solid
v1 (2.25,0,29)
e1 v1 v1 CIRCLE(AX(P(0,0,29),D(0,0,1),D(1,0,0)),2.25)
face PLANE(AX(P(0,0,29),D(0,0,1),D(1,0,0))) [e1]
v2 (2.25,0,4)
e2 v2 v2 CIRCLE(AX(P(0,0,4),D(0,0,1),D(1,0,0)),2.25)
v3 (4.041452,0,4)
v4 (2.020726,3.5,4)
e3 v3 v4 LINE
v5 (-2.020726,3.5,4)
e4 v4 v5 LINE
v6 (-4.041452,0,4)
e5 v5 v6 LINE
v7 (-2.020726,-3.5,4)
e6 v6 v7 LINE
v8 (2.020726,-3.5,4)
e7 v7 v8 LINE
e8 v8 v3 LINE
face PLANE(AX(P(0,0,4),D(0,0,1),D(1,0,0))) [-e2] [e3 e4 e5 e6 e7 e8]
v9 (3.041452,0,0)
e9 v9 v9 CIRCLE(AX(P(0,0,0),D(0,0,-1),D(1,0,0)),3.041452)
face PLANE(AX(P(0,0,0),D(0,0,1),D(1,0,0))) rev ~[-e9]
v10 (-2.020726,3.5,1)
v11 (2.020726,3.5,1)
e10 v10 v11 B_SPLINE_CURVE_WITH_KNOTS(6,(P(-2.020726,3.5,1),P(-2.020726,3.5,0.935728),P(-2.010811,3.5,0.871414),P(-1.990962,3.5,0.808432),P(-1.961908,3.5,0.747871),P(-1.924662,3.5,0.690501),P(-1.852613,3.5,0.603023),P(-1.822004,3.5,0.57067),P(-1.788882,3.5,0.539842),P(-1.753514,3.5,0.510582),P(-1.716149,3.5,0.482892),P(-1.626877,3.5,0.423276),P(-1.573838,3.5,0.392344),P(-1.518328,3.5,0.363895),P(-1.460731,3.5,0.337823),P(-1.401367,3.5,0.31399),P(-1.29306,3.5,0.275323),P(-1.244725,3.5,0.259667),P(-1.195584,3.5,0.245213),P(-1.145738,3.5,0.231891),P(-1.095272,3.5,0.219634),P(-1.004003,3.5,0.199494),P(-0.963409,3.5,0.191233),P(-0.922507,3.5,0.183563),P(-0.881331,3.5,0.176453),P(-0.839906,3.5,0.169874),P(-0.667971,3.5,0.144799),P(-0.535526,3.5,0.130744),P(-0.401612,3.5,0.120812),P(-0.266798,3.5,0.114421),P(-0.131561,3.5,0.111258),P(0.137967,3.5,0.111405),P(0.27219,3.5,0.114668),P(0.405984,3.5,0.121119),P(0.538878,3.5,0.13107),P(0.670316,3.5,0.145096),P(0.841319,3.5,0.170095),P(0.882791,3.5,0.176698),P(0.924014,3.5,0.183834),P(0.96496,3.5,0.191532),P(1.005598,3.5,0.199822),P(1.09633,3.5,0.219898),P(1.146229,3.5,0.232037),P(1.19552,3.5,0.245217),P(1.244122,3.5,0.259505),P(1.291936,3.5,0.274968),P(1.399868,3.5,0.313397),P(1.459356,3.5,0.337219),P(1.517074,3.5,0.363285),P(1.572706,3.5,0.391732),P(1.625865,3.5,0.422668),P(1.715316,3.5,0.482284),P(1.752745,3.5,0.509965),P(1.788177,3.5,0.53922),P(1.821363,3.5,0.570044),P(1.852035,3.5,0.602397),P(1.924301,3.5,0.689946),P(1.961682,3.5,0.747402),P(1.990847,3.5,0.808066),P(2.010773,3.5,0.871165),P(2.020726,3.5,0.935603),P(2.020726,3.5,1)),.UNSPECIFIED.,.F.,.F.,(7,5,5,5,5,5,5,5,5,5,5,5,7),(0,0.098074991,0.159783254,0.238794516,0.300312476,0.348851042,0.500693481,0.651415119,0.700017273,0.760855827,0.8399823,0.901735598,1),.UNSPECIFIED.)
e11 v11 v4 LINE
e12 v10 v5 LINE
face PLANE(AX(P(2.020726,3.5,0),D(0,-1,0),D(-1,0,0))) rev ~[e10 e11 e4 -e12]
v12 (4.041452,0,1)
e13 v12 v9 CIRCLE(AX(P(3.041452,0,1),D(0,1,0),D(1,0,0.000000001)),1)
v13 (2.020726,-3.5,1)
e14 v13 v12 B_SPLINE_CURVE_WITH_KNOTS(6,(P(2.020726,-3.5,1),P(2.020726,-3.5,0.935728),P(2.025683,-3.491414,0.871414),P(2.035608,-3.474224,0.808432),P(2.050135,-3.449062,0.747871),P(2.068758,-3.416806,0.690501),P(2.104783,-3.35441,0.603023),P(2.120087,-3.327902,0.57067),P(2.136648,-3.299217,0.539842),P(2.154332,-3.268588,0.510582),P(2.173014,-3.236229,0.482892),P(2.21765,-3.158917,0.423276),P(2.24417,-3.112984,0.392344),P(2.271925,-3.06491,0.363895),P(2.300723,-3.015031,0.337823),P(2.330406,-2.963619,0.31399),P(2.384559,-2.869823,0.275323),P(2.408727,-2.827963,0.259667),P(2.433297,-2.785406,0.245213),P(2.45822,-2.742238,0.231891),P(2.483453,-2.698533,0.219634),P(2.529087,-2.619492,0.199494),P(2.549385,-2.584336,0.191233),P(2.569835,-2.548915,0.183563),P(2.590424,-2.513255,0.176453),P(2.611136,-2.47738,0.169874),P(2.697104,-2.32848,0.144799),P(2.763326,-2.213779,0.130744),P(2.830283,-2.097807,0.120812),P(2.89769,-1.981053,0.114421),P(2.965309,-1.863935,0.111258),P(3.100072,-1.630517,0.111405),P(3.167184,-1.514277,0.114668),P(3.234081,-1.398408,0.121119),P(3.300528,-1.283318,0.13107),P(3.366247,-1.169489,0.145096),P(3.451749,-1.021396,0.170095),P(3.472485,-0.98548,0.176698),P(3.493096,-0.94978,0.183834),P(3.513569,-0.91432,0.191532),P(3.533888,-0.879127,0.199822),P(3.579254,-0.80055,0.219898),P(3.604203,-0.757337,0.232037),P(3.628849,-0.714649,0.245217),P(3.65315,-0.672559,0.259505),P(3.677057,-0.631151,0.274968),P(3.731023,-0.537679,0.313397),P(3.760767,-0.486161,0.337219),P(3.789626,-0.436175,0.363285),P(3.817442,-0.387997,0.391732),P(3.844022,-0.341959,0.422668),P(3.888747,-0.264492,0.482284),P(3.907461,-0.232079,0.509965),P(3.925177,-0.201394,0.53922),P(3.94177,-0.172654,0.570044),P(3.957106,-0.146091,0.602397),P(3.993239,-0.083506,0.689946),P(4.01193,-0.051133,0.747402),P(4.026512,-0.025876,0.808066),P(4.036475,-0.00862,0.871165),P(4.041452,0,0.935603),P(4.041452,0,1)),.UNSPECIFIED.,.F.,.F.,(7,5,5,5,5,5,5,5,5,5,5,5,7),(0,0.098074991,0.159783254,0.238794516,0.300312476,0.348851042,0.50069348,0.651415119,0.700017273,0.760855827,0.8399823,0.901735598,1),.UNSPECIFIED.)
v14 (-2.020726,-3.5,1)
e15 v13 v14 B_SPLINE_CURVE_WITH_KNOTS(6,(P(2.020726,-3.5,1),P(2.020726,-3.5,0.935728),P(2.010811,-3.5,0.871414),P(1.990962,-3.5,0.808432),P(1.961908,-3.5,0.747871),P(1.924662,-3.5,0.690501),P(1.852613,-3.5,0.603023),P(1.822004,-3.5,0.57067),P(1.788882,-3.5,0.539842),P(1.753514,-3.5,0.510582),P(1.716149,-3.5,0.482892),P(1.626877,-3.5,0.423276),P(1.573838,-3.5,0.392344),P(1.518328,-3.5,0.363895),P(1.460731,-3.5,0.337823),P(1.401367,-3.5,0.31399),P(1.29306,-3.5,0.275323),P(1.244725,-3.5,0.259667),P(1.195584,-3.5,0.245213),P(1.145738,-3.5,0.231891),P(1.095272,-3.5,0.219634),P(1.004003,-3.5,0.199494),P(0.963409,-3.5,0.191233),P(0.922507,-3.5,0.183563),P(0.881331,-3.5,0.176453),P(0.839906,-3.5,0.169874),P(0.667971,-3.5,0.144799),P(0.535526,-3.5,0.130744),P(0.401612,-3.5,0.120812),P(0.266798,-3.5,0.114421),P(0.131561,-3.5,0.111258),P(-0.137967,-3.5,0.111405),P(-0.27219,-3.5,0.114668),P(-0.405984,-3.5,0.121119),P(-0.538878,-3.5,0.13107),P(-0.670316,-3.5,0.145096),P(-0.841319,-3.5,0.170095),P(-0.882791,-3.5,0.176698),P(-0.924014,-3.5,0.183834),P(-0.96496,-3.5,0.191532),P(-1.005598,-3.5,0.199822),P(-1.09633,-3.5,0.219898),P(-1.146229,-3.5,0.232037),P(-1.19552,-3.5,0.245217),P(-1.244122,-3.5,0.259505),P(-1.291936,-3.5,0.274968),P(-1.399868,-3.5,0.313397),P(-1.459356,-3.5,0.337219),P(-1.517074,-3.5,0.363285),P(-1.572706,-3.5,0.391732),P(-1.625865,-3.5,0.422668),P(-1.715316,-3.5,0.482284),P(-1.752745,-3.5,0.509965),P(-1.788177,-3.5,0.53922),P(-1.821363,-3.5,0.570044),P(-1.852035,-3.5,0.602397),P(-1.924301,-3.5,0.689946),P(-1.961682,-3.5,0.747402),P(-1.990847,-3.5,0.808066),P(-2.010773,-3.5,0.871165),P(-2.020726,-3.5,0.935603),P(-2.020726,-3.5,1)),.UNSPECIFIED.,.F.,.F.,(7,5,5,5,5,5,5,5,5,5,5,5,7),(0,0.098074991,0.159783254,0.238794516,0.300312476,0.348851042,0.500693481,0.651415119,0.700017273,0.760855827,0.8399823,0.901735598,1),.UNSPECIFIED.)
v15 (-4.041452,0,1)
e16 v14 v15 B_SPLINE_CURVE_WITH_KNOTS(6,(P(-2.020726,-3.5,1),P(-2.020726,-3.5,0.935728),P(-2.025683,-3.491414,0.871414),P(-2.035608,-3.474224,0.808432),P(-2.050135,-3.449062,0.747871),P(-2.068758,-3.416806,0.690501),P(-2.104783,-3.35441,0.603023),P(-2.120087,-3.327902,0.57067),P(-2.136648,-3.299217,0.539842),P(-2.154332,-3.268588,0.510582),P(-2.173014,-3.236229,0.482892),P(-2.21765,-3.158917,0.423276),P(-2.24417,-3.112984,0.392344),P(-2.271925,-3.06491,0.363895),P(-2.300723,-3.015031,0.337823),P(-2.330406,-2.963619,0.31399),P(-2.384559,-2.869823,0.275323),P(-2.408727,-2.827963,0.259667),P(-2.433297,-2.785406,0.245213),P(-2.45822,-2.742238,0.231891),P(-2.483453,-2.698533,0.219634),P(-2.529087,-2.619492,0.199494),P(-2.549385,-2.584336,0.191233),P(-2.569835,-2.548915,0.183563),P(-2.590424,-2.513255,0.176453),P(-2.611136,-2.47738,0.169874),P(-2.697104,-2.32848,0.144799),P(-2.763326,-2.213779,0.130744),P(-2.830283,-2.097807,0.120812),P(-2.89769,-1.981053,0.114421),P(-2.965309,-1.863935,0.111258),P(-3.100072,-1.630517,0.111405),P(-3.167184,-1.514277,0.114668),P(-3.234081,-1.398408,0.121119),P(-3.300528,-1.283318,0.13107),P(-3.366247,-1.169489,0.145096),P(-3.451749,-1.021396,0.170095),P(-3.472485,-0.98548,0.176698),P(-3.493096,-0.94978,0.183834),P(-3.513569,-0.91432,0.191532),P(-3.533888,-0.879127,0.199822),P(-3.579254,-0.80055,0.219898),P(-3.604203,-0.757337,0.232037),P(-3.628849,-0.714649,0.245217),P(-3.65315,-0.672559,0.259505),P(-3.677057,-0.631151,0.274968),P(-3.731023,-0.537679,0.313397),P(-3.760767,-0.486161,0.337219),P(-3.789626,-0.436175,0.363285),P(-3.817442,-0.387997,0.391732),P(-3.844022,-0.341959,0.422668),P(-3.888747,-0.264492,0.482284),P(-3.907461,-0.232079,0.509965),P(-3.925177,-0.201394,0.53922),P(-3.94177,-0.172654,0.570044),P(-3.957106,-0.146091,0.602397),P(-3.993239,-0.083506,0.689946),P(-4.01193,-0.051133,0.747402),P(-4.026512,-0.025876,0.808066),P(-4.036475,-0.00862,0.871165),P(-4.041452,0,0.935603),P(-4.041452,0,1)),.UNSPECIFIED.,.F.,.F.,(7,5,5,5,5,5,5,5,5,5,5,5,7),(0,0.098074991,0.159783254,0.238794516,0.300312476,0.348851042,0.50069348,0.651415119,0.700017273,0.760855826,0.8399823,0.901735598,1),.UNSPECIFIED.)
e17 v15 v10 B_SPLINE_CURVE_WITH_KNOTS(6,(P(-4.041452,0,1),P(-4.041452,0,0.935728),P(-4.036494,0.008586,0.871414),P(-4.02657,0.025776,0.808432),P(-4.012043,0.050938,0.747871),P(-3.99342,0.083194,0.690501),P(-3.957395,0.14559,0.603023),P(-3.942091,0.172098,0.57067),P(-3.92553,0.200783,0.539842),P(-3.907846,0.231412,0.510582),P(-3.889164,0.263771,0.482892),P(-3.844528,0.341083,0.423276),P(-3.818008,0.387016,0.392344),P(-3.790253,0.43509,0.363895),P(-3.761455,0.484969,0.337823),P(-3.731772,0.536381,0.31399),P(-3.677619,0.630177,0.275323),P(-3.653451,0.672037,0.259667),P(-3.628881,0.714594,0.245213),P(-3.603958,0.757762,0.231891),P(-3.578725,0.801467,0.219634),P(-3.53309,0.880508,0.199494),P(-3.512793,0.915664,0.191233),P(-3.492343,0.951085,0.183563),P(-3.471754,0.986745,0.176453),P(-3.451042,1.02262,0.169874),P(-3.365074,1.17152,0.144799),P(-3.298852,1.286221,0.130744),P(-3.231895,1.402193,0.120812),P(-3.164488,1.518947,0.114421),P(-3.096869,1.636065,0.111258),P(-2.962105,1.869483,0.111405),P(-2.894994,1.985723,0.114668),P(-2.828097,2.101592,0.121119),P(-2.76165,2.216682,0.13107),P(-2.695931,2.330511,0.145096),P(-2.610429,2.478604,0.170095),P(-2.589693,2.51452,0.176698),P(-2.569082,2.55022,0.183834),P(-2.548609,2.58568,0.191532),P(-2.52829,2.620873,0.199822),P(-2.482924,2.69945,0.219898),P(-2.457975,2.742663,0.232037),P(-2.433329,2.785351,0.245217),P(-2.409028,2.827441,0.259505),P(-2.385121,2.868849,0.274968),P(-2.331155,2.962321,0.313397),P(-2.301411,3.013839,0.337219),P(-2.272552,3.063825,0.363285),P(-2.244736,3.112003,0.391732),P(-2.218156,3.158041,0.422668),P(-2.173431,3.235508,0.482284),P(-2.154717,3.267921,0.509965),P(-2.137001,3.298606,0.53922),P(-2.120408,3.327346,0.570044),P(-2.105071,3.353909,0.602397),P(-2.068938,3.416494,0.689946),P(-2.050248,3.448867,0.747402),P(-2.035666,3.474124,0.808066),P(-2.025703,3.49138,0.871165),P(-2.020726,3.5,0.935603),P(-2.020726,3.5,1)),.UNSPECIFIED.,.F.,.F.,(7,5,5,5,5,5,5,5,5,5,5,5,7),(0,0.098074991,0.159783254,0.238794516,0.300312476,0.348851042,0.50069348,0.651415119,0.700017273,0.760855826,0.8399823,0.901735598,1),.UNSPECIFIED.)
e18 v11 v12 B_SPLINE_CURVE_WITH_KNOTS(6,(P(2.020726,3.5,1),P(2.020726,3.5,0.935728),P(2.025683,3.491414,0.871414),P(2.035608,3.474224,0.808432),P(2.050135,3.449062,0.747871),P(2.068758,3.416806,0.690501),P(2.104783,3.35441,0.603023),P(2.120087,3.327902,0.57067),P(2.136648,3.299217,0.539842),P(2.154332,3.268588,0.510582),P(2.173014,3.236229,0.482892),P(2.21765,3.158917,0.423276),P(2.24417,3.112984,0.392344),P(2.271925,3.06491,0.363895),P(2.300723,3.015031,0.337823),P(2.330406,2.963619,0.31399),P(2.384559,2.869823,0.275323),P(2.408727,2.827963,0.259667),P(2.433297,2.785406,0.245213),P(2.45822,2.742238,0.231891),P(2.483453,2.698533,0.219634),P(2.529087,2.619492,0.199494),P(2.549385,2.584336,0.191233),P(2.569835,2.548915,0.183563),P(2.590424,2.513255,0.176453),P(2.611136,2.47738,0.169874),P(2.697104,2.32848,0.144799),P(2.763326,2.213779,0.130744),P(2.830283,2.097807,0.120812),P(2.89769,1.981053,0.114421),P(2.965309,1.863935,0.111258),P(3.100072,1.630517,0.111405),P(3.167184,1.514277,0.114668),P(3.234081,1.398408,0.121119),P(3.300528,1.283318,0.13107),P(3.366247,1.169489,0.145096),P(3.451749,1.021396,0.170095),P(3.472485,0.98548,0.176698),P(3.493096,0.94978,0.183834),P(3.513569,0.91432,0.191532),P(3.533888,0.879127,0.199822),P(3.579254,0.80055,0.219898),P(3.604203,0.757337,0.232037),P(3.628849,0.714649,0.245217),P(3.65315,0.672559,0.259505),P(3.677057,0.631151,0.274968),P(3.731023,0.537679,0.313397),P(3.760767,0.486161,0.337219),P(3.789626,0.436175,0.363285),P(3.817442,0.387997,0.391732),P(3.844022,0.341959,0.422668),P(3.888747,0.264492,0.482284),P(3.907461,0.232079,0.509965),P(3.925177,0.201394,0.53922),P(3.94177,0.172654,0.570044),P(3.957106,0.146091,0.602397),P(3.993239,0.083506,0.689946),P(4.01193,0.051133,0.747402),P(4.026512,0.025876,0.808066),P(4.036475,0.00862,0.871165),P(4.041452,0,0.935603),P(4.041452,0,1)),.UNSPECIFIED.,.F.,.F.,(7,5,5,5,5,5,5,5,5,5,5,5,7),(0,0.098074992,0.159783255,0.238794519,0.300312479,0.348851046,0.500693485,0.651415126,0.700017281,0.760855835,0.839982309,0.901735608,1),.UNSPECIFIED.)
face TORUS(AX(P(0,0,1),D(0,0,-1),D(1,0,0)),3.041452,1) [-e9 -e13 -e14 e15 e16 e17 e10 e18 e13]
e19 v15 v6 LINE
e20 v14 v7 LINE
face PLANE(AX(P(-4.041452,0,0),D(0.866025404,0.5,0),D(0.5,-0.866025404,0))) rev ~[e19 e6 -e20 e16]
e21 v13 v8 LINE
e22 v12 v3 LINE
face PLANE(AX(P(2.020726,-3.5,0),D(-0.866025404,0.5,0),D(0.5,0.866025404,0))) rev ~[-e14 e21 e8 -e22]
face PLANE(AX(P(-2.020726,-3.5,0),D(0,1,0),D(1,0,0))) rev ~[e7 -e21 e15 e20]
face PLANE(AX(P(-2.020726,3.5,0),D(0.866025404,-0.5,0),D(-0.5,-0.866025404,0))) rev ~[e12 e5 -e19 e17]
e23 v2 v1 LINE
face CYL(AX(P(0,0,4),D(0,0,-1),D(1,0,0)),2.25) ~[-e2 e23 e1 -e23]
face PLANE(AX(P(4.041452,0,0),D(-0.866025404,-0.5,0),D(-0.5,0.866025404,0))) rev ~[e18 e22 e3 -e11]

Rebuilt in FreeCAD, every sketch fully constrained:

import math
import FreeCAD as App
import Part
import Sketcher
from FreeCAD import Vector
Q = App.Units.Quantity


def add_polygon(sketch, points):
    """Adds a closed chain of lines whose ends are joined by coincident constraints."""
    first, n = sketch.GeometryCount, len(points)
    for a, b in zip(points, points[1:] + points[:1]):
        sketch.addGeometry(Part.LineSegment(App.Vector(*a, 0), App.Vector(*b, 0)), False)
    for i in range(n):
        sketch.addConstraint(Sketcher.Constraint("Coincident", first + i, 2, first + (i + 1) % n, 1))

doc = App.newDocument("Part")
body = doc.addObject("PartDesign::Body", "Body")

# Sketch on XY plane
sketch1 = body.newObject("Sketcher::SketchObject", "Sketch")
sketch1.AttachmentSupport = (doc.getObject("XY_Plane"), [""])
sketch1.MapMode = "FlatFace"
add_polygon(sketch1, [(-4.041452, 0), (-2.020726, -3.5), (2.020726, -3.5), (4.041452, 0), (2.020726, 3.5), (-2.020726, 3.5)])  # lines 0-5
sketch1.addConstraint(Sketcher.Constraint("Horizontal", 1))
sketch1.addConstraint(Sketcher.Constraint("Horizontal", 4))
sketch1.addConstraint(Sketcher.Constraint("Symmetric", 0, 2, 3, 2, -1, 1))
sketch1.addConstraint(Sketcher.Constraint("Symmetric", 2, 2, 5, 2, -1, 1))
sketch1.addConstraint(Sketcher.Constraint("PointOnObject", 2, 2, -1))
sketch1.addConstraint(Sketcher.Constraint("Parallel", 2, 5))
sketch1.addConstraint(Sketcher.Constraint("Vertical", 1, 2, 3, 2))
sketch1.addConstraint(Sketcher.Constraint("Angle", 0, Q("-60 deg")))
sketch1.addConstraint(Sketcher.Constraint("DistanceY", 1, 2, 3, 2, Q("7 mm")))
sketch1.addConstraint(Sketcher.Constraint("DistanceX", 1, 1, 1, 2, Q("4.041452 mm")))
pad1 = body.newObject("PartDesign::Pad", "Pad")
pad1.Profile = sketch1
pad1.Length = 4

# Sketch on XY plane
sketch2 = body.newObject("Sketcher::SketchObject", "Sketch001")
sketch2.AttachmentSupport = (doc.getObject("XY_Plane"), [""])
sketch2.MapMode = "FlatFace"
sketch2.AttachmentOffset = App.Placement(Vector(0, 0, 4), App.Rotation())
sketch2.addGeometry(Part.Circle(Vector(0, 0, 0), Vector(0, 0, 1), 2.25), False)
sketch2.addConstraint(Sketcher.Constraint("Coincident", 0, 3, -1, 1))
sketch2.addConstraint(Sketcher.Constraint("Diameter", 0, Q("4.5 mm")))
pad2 = body.newObject("PartDesign::Pad", "Pad001")
pad2.Profile = sketch2
pad2.Length = 25

# Sketch on XZ plane
sketch3 = body.newObject("Sketcher::SketchObject", "Sketch002")
sketch3.AttachmentSupport = (doc.getObject("XZ_Plane"), [""])
sketch3.MapMode = "FlatFace"
sketch3.addGeometry(Part.LineSegment(Vector(4.041452, 0, 0), Vector(3.041452, 0, 0)), False)
sketch3.addGeometry(Part.ArcOfCircle(Part.Circle(Vector(3.041452, 1, 0), Vector(0, 0, 1), 1), math.radians(-90), math.radians(0)), False)
sketch3.addGeometry(Part.LineSegment(Vector(4.041452, 1, 0), Vector(4.041452, 0, 0)), False)
sketch3.addConstraint(Sketcher.Constraint("Tangent", 0, 2, 1, 1))
sketch3.addConstraint(Sketcher.Constraint("Tangent", 1, 2, 2, 1))
sketch3.addConstraint(Sketcher.Constraint("Coincident", 2, 2, 0, 1))
sketch3.addConstraint(Sketcher.Constraint("Horizontal", 0))
sketch3.addConstraint(Sketcher.Constraint("Vertical", 2))
sketch3.addConstraint(Sketcher.Constraint("PointOnObject", 0, 2, -1))
sketch3.addConstraint(Sketcher.Constraint("Radius", 1, Q("1 mm")))
sketch3.addConstraint(Sketcher.Constraint("DistanceX", -1, 1, 1, 3, Q("3.041452 mm")))
groove = body.newObject("PartDesign::Groove", "Groove")
groove.Profile = sketch3
groove.ReferenceAxis = (sketch3, ["V_Axis"])
groove.Angle = 360

doc.recompute()
